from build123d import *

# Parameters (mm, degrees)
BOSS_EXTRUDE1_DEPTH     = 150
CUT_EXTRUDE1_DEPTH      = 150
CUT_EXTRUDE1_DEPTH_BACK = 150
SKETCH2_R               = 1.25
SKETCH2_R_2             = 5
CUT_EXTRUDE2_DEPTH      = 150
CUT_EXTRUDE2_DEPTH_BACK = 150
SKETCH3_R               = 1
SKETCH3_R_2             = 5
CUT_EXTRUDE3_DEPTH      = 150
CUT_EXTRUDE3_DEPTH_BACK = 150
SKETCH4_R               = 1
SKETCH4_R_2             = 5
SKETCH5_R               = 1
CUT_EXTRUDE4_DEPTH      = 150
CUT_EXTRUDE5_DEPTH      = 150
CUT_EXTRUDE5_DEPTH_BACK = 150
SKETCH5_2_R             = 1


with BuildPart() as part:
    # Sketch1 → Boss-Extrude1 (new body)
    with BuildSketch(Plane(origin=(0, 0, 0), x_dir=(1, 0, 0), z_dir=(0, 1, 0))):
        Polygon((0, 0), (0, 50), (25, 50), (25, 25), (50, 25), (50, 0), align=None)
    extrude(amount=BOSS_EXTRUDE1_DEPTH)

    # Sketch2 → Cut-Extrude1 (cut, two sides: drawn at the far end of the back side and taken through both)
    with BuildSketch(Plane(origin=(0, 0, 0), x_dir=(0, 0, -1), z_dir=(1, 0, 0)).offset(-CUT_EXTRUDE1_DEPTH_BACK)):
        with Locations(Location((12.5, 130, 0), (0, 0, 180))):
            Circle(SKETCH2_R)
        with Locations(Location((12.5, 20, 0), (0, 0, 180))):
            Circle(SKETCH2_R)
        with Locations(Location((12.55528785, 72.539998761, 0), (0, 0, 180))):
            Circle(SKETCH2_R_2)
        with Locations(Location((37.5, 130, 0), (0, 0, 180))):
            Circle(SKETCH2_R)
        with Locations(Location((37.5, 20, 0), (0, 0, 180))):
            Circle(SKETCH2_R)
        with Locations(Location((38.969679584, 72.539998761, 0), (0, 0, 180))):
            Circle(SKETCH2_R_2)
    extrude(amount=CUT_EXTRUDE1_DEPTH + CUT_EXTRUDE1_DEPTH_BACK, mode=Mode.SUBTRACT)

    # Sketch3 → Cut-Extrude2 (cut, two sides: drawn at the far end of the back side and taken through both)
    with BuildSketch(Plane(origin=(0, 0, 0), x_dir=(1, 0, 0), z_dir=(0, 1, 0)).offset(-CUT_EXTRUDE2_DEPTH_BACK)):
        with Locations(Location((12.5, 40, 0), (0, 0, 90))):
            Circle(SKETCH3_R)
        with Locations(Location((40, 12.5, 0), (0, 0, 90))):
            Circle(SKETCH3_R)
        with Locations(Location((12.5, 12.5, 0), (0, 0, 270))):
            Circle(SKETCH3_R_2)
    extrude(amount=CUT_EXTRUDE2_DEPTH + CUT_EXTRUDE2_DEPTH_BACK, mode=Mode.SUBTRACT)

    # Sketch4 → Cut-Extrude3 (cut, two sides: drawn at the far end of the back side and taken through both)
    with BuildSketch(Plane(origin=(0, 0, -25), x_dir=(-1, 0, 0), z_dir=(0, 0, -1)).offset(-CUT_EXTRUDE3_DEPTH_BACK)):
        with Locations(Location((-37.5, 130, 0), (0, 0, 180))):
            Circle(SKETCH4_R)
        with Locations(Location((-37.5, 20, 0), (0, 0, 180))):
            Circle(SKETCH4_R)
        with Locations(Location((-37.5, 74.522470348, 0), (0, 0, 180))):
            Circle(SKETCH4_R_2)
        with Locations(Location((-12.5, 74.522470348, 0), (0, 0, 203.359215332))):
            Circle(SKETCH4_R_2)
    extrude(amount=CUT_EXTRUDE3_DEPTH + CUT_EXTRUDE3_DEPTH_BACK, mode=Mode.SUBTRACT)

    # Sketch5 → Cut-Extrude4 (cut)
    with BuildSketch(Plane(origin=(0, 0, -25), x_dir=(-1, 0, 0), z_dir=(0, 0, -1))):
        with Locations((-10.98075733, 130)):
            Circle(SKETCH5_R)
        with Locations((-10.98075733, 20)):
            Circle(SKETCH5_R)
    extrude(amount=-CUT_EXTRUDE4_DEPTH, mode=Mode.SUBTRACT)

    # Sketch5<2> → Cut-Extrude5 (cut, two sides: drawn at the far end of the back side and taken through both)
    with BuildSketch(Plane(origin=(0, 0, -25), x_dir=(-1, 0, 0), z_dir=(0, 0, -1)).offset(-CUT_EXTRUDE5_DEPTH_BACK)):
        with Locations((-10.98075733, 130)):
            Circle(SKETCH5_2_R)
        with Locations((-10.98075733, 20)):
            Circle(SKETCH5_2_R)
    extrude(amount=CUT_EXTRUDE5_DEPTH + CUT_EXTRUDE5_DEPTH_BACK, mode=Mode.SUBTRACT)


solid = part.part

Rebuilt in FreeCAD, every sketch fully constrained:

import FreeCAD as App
import Part
import Sketcher


def add_polygon(sketch, points):
    """Adds a closed chain of lines whose ends are joined by coincident constraints."""
    first, n = sketch.GeometryCount, len(points)
    for a, b in zip(points, points[1:] + points[:1]):
        sketch.addGeometry(Part.LineSegment(App.Vector(*a, 0), App.Vector(*b, 0)), False)
    for i in range(n):
        sketch.addConstraint(Sketcher.Constraint("Coincident", first + i, 2, first + (i + 1) % n, 1))

doc = App.newDocument("Part")
body = doc.addObject("PartDesign::Body", "Body")

# Sketch on XZ plane
sketch1 = body.newObject("Sketcher::SketchObject", "Sketch")
sketch1.AttachmentSupport = (doc.getObject("XZ_Plane"), [""])
sketch1.MapMode = "FlatFace"
add_polygon(sketch1, [(0, -50), (0, 0), (50, 0), (50, -25), (25, -25), (25, -50)])  # lines 0-5
sketch1.addConstraint([
    Sketcher.Constraint("Vertical", 0),
    Sketcher.Constraint("Horizontal", 1),
    Sketcher.Constraint("Vertical", 2),
    Sketcher.Constraint("Horizontal", 3),
    Sketcher.Constraint("Vertical", 4),
    Sketcher.Constraint("Horizontal", 5),
    Sketcher.Constraint("Coincident", 0, 2, -1, 1),
    Sketcher.Constraint("Equal", 3, 5),
    Sketcher.Constraint("Equal", 1, 0),
    Sketcher.Constraint("Equal", 5, 2),
    Sketcher.Constraint("DistanceX", 1, 1, 1, 2, 50.0),
])
pad1 = body.newObject("PartDesign::Pad", "Pad")
pad1.Profile = sketch1
pad1.Length = 150
pad1.Reversed = True

# Sketch on YZ plane
sketch2 = body.newObject("Sketcher::SketchObject", "Sketch001")
sketch2.AttachmentSupport = (doc.getObject("YZ_Plane"), [""])
sketch2.MapMode = "FlatFace"
sketch2.addGeometry([
    Part.Circle(App.Vector(130, -12.5, 0), App.Vector(0, 0, 1), 1.25),  # 0
    Part.Circle(App.Vector(20, -12.5, 0), App.Vector(0, 0, 1), 1.25),  # 1
    Part.Circle(App.Vector(72.539999, -12.555288, 0), App.Vector(0, 0, 1), 5),  # 2
    Part.Circle(App.Vector(130, -37.5, 0), App.Vector(0, 0, 1), 1.25),  # 3
    Part.Circle(App.Vector(20, -37.5, 0), App.Vector(0, 0, 1), 1.25),  # 4
    Part.Circle(App.Vector(72.539999, -38.96968, 0), App.Vector(0, 0, 1), 5),  # 5
], False)
sketch2.addConstraint([
    Sketcher.Constraint("Equal", 0, 1),
    Sketcher.Constraint("Equal", 1, 3),
    Sketcher.Constraint("Equal", 3, 4),
    Sketcher.Constraint("Equal", 2, 5),
    Sketcher.Constraint("Horizontal", 0, 3, 1, 3),
    Sketcher.Constraint("Horizontal", 3, 3, 4, 3),
    Sketcher.Constraint("Vertical", 0, 3, 3, 3),
    Sketcher.Constraint("Vertical", 1, 3, 4, 3),
    Sketcher.Constraint("Vertical", 2, 3, 5, 3),
    Sketcher.Constraint("Diameter", 2, 10.0),
    Sketcher.Constraint("Diameter", 0, 2.5),
    Sketcher.Constraint("DistanceX", -1, 1, 0, 3, 130.0),
    Sketcher.Constraint("DistanceX", -1, 1, 1, 3, 20.0),
    Sketcher.Constraint("DistanceY", 3, 3, 0, 3, 25.0),
    Sketcher.Constraint("DistanceY", 0, 3, -1, 1, 12.5),
    Sketcher.Constraint("DistanceX", -1, 1, 2, 3, 72.539999),
    Sketcher.Constraint("DistanceY", 5, 3, -1, 1, 38.96968),
    Sketcher.Constraint("DistanceY", 5, 3, 2, 3, 26.414392),
])
pocket1 = body.newObject("PartDesign::Pocket", "Pocket")
pocket1.Profile = sketch2
pocket1.Type = "ThroughAll"
pocket1.Midplane = True

# Sketch on XZ plane
sketch3 = body.newObject("Sketcher::SketchObject", "Sketch002")
sketch3.AttachmentSupport = (doc.getObject("XZ_Plane"), [""])
sketch3.MapMode = "FlatFace"
sketch3.addGeometry([
    Part.Circle(App.Vector(12.5, -40, 0), App.Vector(0, 0, 1), 1),
    Part.Circle(App.Vector(40, -12.5, 0), App.Vector(0, 0, 1), 1),
    Part.Circle(App.Vector(12.5, -12.5, 0), App.Vector(0, 0, 1), 5),
], False)
sketch3.addConstraint([
    Sketcher.Constraint("Equal", 0, 1),
    Sketcher.Constraint("Horizontal", 1, 3, 2, 3),
    Sketcher.Constraint("Vertical", 0, 3, 2, 3),
    Sketcher.Constraint("Diameter", 0, 2.0),
    Sketcher.Constraint("Diameter", 2, 10.0),
    Sketcher.Constraint("DistanceY", 0, 3, -1, 1, 40.0),
    Sketcher.Constraint("DistanceX", -1, 1, 1, 3, 40.0),
    Sketcher.Constraint("DistanceX", -1, 1, 0, 3, 12.5),
    Sketcher.Constraint("DistanceY", 1, 3, -1, 1, 12.5),
])
pocket2 = body.newObject("PartDesign::Pocket", "Pocket001")
pocket2.Profile = sketch3
pocket2.Type = "ThroughAll"
pocket2.Midplane = True

# Sketch on XY plane
sketch4 = body.newObject("Sketcher::SketchObject", "Sketch003")
sketch4.AttachmentSupport = (doc.getObject("XY_Plane"), [""])
sketch4.MapMode = "FlatFace"
sketch4.AttachmentOffset = App.Placement(App.Vector(0, 0, -25), App.Rotation())
sketch4.addGeometry([
    Part.Circle(App.Vector(37.5, 130, 0), App.Vector(0, 0, 1), 1),
    Part.Circle(App.Vector(37.5, 20, 0), App.Vector(0, 0, 1), 1),
    Part.Circle(App.Vector(37.5, 74.52247, 0), App.Vector(0, 0, 1), 5),
    Part.Circle(App.Vector(12.5, 74.52247, 0), App.Vector(0, 0, 1), 5),
], False)
sketch4.addConstraint([
    Sketcher.Constraint("Equal", 0, 1),
    Sketcher.Constraint("Equal", 2, 3),
    Sketcher.Constraint("Horizontal", 2, 3, 3, 3),
    Sketcher.Constraint("Vertical", 0, 3, 1, 3),
    Sketcher.Constraint("Vertical", 1, 3, 2, 3),
    Sketcher.Constraint("Diameter", 0, 2.0),
    Sketcher.Constraint("Diameter", 2, 10.0),
    Sketcher.Constraint("DistanceY", -1, 1, 0, 3, 130.0),
    Sketcher.Constraint("DistanceY", -1, 1, 1, 3, 20.0),
    Sketcher.Constraint("DistanceX", 3, 3, 2, 3, 25.0),
    Sketcher.Constraint("DistanceX", -1, 1, 0, 3, 37.5),
    Sketcher.Constraint("DistanceY", -1, 1, 2, 3, 74.52247),
])
pocket3 = body.newObject("PartDesign::Pocket", "Pocket002")
pocket3.Profile = sketch4
pocket3.Type = "ThroughAll"
pocket3.Midplane = True

# Sketch on XY plane
sketch5 = body.newObject("Sketcher::SketchObject", "Sketch004")
sketch5.AttachmentSupport = (doc.getObject("XY_Plane"), [""])
sketch5.MapMode = "FlatFace"
sketch5.AttachmentOffset = App.Placement(App.Vector(0, 0, -25), App.Rotation())
sketch5.addGeometry([
    Part.Circle(App.Vector(10.980757, 130, 0), App.Vector(0, 0, 1), 1),
    Part.Circle(App.Vector(10.980757, 20, 0), App.Vector(0, 0, 1), 1),
], False)
sketch5.addConstraint([
    Sketcher.Constraint("Equal", 0, 1),
    Sketcher.Constraint("Vertical", 0, 3, 1, 3),
    Sketcher.Constraint("Diameter", 0, 2.0),
    Sketcher.Constraint("DistanceY", -1, 1, 0, 3, 130.0),
    Sketcher.Constraint("DistanceY", -1, 1, 1, 3, 20.0),
    Sketcher.Constraint("DistanceX", -1, 1, 0, 3, 10.980757),
])
pocket4 = body.newObject("PartDesign::Pocket", "Pocket003")
pocket4.Profile = sketch5
pocket4.Length = 150
pocket4.Reversed = True

# Sketch on XY plane
sketch6 = body.newObject("Sketcher::SketchObject", "Sketch005")
sketch6.AttachmentSupport = (doc.getObject("XY_Plane"), [""])
sketch6.MapMode = "FlatFace"
sketch6.AttachmentOffset = App.Placement(App.Vector(0, 0, -25), App.Rotation())
sketch6.addGeometry([
    Part.Circle(App.Vector(10.980757, 130, 0), App.Vector(0, 0, 1), 1),
    Part.Circle(App.Vector(10.980757, 20, 0), App.Vector(0, 0, 1), 1),
], False)
sketch6.addConstraint([
    Sketcher.Constraint("Equal", 0, 1),
    Sketcher.Constraint("Vertical", 0, 3, 1, 3),
    Sketcher.Constraint("Diameter", 0, 2.0),
    Sketcher.Constraint("DistanceY", -1, 1, 0, 3, 130.0),
    Sketcher.Constraint("DistanceY", -1, 1, 1, 3, 20.0),
    Sketcher.Constraint("DistanceX", -1, 1, 0, 3, 10.980757),
])
pocket5 = body.newObject("PartDesign::Pocket", "Pocket004")
pocket5.Profile = sketch6
pocket5.Type = "ThroughAll"
pocket5.Midplane = True

doc.recompute()
